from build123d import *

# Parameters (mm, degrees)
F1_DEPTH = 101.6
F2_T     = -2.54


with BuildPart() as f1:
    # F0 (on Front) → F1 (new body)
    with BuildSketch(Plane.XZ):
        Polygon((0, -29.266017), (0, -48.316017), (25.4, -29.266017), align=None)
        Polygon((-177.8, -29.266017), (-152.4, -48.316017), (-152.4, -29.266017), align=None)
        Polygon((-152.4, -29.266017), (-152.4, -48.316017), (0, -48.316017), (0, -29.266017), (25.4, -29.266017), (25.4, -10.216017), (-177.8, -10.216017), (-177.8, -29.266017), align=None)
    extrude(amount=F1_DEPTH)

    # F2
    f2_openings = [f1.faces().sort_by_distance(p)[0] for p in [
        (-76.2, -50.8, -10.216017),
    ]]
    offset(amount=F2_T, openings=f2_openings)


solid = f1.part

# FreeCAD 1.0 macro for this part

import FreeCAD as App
import Part
import Sketcher
from FreeCAD import Vector
Q = App.Units.Quantity


def faces_at(feature, points):
    """Names of the faces that lie closest to the given points."""
    faces = feature.Shape.Faces
    near = lambda p: min(range(len(faces)), key=lambda i: faces[i].distToShape(Part.Vertex(*p))[0])
    return sorted({f"Face{near(p) + 1}" for p in points})

doc = App.newDocument("Part")
body = doc.addObject("PartDesign::Body", "Body")

sketch1 = body.newObject("Sketcher::SketchObject", "Sketch")
sketch1.AttachmentSupport = (doc.getObject("XZ_Plane"), [""])
sketch1.MapMode = "FlatFace"
sketch1.addGeometry(Part.LineSegment(Vector(0, -48, 0), Vector(25, -29, 0)), False)
sketch1.addGeometry(Part.LineSegment(Vector(25, -29, 0), Vector(25, -10, 0)), False)
sketch1.addGeometry(Part.LineSegment(Vector(25, -10, 0), Vector(-178, -10, 0)), False)
sketch1.addGeometry(Part.LineSegment(Vector(-178, -10, 0), Vector(-178, -29, 0)), False)
sketch1.addGeometry(Part.LineSegment(Vector(-178, -29, 0), Vector(-152, -48, 0)), False)
sketch1.addGeometry(Part.LineSegment(Vector(-152, -48, 0), Vector(0, -48, 0)), False)
sketch1.addConstraint(Sketcher.Constraint("Coincident", 0, 2, 1, 1))
sketch1.addConstraint(Sketcher.Constraint("Coincident", 1, 2, 2, 1))
sketch1.addConstraint(Sketcher.Constraint("Coincident", 2, 2, 3, 1))
sketch1.addConstraint(Sketcher.Constraint("Coincident", 3, 2, 4, 1))
sketch1.addConstraint(Sketcher.Constraint("Coincident", 4, 2, 5, 1))
sketch1.addConstraint(Sketcher.Constraint("Coincident", 5, 2, 0, 1))
sketch1.addConstraint(Sketcher.Constraint("Vertical", 1))
sketch1.addConstraint(Sketcher.Constraint("Horizontal", 2))
sketch1.addConstraint(Sketcher.Constraint("Vertical", 3))
sketch1.addConstraint(Sketcher.Constraint("Horizontal", 5))
sketch1.addConstraint(Sketcher.Constraint("PointOnObject", 5, 2, -2))
sketch1.addConstraint(Sketcher.Constraint("Horizontal", 0, 2, 3, 2))
sketch1.addConstraint(Sketcher.Constraint("Equal", 0, 4))
sketch1.addConstraint(Sketcher.Constraint("DistanceX", 2, 2, 2, 1, Q("8 in")))
sketch1.addConstraint(Sketcher.Constraint("DistanceX", 5, 1, 5, 2, Q("6 in")))
sketch1.addConstraint(Sketcher.Constraint("DistanceY", 1, 1, 1, 2, Q("0.75 in")))
sketch1.addConstraint(Sketcher.Constraint("DistanceY", 4, 2, 2, 2, Q("1.5 in")))
sketch1.addConstraint(Sketcher.Constraint("DistanceY", 0, 2, -1, 1, 29.266017))
pad1 = body.newObject("PartDesign::Pad", "Pad")
pad1.Profile = sketch1
pad1.Length = Q("4 in")
doc.recompute()

thickness = body.newObject("PartDesign::Thickness", "Thickness")
thickness.Base = (pad1, faces_at(pad1, [(-76.2, -50.8, -10.216)]))
thickness.Value = Q("0.1 in")
thickness.Reversed = True
thickness.Join = "Arc"

doc.recompute()
